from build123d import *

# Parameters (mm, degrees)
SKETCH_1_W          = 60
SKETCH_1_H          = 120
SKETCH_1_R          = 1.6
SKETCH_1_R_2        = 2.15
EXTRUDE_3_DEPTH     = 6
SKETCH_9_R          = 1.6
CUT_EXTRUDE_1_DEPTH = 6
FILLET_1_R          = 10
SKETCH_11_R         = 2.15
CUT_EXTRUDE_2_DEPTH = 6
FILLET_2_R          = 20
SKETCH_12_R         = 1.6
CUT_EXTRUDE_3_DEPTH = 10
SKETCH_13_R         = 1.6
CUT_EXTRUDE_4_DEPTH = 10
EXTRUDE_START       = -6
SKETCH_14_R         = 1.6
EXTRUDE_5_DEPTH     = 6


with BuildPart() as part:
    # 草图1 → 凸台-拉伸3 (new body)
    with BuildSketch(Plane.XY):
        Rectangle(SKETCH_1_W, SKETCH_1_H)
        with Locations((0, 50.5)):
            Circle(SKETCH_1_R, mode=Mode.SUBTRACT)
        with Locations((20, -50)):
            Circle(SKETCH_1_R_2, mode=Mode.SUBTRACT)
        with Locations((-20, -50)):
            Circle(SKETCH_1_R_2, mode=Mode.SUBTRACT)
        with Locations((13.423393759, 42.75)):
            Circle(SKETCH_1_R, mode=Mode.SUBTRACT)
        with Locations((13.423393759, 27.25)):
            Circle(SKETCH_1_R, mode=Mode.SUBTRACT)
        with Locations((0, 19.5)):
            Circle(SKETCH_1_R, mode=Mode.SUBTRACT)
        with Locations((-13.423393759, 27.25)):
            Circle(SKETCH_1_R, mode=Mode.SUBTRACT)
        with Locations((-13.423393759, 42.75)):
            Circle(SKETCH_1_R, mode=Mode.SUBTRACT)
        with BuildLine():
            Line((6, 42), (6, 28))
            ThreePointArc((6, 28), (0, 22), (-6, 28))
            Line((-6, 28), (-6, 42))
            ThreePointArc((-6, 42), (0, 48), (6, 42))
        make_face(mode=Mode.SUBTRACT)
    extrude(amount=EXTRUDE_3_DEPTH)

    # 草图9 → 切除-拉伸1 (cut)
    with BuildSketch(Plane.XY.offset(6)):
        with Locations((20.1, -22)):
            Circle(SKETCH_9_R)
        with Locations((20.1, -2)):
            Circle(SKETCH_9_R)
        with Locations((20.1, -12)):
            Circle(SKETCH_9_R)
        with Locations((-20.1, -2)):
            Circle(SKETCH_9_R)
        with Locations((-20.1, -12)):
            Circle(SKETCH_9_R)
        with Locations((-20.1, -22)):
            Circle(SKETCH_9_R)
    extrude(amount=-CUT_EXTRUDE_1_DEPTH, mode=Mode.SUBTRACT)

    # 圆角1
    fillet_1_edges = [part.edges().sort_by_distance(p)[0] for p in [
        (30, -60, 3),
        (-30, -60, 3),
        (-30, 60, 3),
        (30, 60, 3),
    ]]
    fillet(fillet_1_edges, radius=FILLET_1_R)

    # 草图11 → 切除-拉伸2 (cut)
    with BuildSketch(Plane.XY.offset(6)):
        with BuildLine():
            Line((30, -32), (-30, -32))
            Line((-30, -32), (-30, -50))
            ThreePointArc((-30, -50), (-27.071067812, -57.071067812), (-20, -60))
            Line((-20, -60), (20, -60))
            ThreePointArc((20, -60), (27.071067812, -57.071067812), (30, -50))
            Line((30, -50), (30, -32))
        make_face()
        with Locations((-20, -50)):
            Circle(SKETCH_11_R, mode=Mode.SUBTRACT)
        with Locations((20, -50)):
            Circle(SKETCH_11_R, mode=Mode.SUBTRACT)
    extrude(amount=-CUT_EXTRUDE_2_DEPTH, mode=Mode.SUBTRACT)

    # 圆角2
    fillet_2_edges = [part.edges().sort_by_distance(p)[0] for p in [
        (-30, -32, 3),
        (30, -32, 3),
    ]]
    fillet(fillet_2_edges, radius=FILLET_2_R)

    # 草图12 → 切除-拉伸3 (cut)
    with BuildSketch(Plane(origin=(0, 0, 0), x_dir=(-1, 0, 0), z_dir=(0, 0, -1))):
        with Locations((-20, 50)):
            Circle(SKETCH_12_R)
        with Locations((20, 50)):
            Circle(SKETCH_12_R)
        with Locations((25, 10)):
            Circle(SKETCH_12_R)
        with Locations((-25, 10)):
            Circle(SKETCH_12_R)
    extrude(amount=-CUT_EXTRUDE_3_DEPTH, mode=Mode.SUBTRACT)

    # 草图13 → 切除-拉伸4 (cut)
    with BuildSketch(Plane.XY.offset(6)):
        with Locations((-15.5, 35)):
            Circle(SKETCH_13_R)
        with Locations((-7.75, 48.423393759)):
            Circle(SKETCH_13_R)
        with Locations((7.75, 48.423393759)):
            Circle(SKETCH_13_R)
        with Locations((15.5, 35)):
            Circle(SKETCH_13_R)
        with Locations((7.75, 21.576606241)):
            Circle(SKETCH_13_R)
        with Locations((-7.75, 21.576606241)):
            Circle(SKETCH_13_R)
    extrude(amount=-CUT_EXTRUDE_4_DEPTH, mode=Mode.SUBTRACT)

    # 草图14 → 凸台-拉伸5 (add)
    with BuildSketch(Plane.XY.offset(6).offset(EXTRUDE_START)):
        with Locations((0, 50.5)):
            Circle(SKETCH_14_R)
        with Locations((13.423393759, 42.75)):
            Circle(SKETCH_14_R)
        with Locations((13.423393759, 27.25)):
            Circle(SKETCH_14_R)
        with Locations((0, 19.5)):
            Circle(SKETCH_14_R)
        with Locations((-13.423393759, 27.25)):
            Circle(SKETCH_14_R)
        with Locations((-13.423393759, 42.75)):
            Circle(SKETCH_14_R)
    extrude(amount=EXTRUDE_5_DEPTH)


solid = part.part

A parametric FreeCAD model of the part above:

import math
import FreeCAD as App
import Part
import Sketcher
from FreeCAD import Vector
Q = App.Units.Quantity


def edges_at(feature, points):
    """Names of the edges that pass closest to the given points."""
    edges = feature.Shape.Edges
    near = lambda p: min(range(len(edges)), key=lambda i: edges[i].distToShape(Part.Vertex(*p))[0])
    return sorted({f"Edge{near(p) + 1}" for p in points})


def add_polygon(sketch, points):
    """Adds a closed chain of lines whose ends are joined by coincident constraints."""
    first, n = sketch.GeometryCount, len(points)
    for a, b in zip(points, points[1:] + points[:1]):
        sketch.addGeometry(Part.LineSegment(App.Vector(*a, 0), App.Vector(*b, 0)), False)
    for i in range(n):
        sketch.addConstraint(Sketcher.Constraint("Coincident", first + i, 2, first + (i + 1) % n, 1))

doc = App.newDocument("Part")
body = doc.addObject("PartDesign::Body", "Body")

sketch1 = body.newObject("Sketcher::SketchObject", "Sketch")
sketch1.AttachmentSupport = (doc.getObject("XY_Plane"), [""])
sketch1.MapMode = "FlatFace"
add_polygon(sketch1, [(-30, 60), (-30, -60), (30, -60), (30, 60)])
sketch1.addGeometry(Part.Circle(Vector(-20, -50, 0), Vector(0, 0, 1), 2.1), False)
sketch1.addGeometry(Part.Circle(Vector(20, -50, 0), Vector(0, 0, 1), 2.1), False)
sketch1.addGeometry(Part.Circle(Vector(-13.4, 27.2, 0), Vector(0, 0, 1), 1.6), False)
sketch1.addGeometry(Part.Circle(Vector(-13.4, 42.8, 0), Vector(0, 0, 1), 1.6), False)
sketch1.addGeometry(Part.Circle(Vector(0, 19.5, 0), Vector(0, 0, 1), 1.6), False)
sketch1.addGeometry(Part.ArcOfCircle(Part.Circle(Vector(0, 42, 0), Vector(0, 0, 1), 6), math.radians(0), math.radians(180)), False)
sketch1.addGeometry(Part.LineSegment(Vector(6, 42, 0), Vector(6, 28, 0)), False)
sketch1.addGeometry(Part.ArcOfCircle(Part.Circle(Vector(0, 28, 0), Vector(0, 0, 1), 6), math.radians(180), math.radians(360)), False)
sketch1.addGeometry(Part.LineSegment(Vector(-6, 28, 0), Vector(-6, 42, 0)), False)
sketch1.addGeometry(Part.Circle(Vector(0, 50.5, 0), Vector(0, 0, 1), 1.6), False)
sketch1.addGeometry(Part.Circle(Vector(13.4, 27.2, 0), Vector(0, 0, 1), 1.6), False)
sketch1.addGeometry(Part.Circle(Vector(13.4, 42.8, 0), Vector(0, 0, 1), 1.6), False)
sketch1.addConstraint(Sketcher.Constraint("Tangent", 9, 1, 10, 1))
sketch1.addConstraint(Sketcher.Constraint("Tangent", 10, 2, 11, 2))
sketch1.addConstraint(Sketcher.Constraint("Tangent", 11, 1, 12, 1))
sketch1.addConstraint(Sketcher.Constraint("Tangent", 12, 2, 9, 2))
sketch1.addConstraint(Sketcher.Constraint("Vertical", 0))
sketch1.addConstraint(Sketcher.Constraint("Horizontal", 1))
sketch1.addConstraint(Sketcher.Constraint("Vertical", 2))
sketch1.addConstraint(Sketcher.Constraint("Horizontal", 3))
sketch1.addConstraint(Sketcher.Constraint("Vertical", 10))
sketch1.addConstraint(Sketcher.Constraint("Vertical", 12))
sketch1.addConstraint(Sketcher.Constraint("Equal", 4, 5))
sketch1.addConstraint(Sketcher.Constraint("Equal", 6, 7))
sketch1.addConstraint(Sketcher.Constraint("Equal", 7, 8))
sketch1.addConstraint(Sketcher.Constraint("Equal", 8, 13))
sketch1.addConstraint(Sketcher.Constraint("Equal", 13, 14))
sketch1.addConstraint(Sketcher.Constraint("Equal", 14, 15))
sketch1.addConstraint(Sketcher.Constraint("Symmetric", 0, 2, 2, 2, -1, 1))
sketch1.addConstraint(Sketcher.Constraint("Symmetric", 4, 3, 5, 3, -2))
sketch1.addConstraint(Sketcher.Constraint("Symmetric", 6, 3, 14, 3, -2))
sketch1.addConstraint(Sketcher.Constraint("Symmetric", 7, 3, 15, 3, -2))
sketch1.addConstraint(Sketcher.Constraint("PointOnObject", 8, 3, -2))
sketch1.addConstraint(Sketcher.Constraint("PointOnObject", 9, 3, -2))
sketch1.addConstraint(Sketcher.Constraint("PointOnObject", 13, 3, -2))
sketch1.addConstraint(Sketcher.Constraint("Vertical", 6, 3, 7, 3))
sketch1.addConstraint(Sketcher.Constraint("Radius", 9, Q("6 mm")))
sketch1.addConstraint(Sketcher.Constraint("Diameter", 4, Q("4.3 mm")))
sketch1.addConstraint(Sketcher.Constraint("Diameter", 6, Q("3.2 mm")))
sketch1.addConstraint(Sketcher.Constraint("DistanceX", 1, 1, 1, 2, Q("60 mm")))
sketch1.addConstraint(Sketcher.Constraint("DistanceY", 0, 2, 0, 1, Q("120 mm")))
sketch1.addConstraint(Sketcher.Constraint("DistanceY", 10, 2, 10, 1, Q("14 mm")))
sketch1.addConstraint(Sketcher.Constraint("DistanceX", 4, 3, -1, 1, Q("20 mm")))
sketch1.addConstraint(Sketcher.Constraint("DistanceY", 4, 3, -1, 1, Q("50 mm")))
sketch1.addConstraint(Sketcher.Constraint("DistanceY", -1, 1, 9, 3, Q("42 mm")))
sketch1.addConstraint(Sketcher.Constraint("DistanceY", 8, 3, 13, 3, Q("31 mm")))
sketch1.addConstraint(Sketcher.Constraint("DistanceY", -1, 1, 8, 3, Q("19.5 mm")))
sketch1.addConstraint(Sketcher.Constraint("DistanceY", 6, 3, 7, 3, Q("15.5 mm")))
sketch1.addConstraint(Sketcher.Constraint("DistanceY", -1, 1, 6, 3, Q("27.25 mm")))
sketch1.addConstraint(Sketcher.Constraint("DistanceX", 6, 3, -1, 1, Q("13.423394 mm")))
pad1 = body.newObject("PartDesign::Pad", "Pad")
pad1.Profile = sketch1
pad1.Length = 6

sketch2 = body.newObject("Sketcher::SketchObject", "Sketch001")
sketch2.AttachmentSupport = (doc.getObject("XY_Plane"), [""])
sketch2.MapMode = "FlatFace"
sketch2.AttachmentOffset = App.Placement(Vector(0, 0, 6), App.Rotation())
sketch2.addGeometry(Part.Circle(Vector(20.1, -22, 0), Vector(0, 0, 1), 1.6), False)
sketch2.addGeometry(Part.Circle(Vector(20.1, -2, 0), Vector(0, 0, 1), 1.6), False)
sketch2.addGeometry(Part.Circle(Vector(20.1, -12, 0), Vector(0, 0, 1), 1.6), False)
sketch2.addGeometry(Part.Circle(Vector(-20.1, -2, 0), Vector(0, 0, 1), 1.6), False)
sketch2.addGeometry(Part.Circle(Vector(-20.1, -12, 0), Vector(0, 0, 1), 1.6), False)
sketch2.addGeometry(Part.Circle(Vector(-20.1, -22, 0), Vector(0, 0, 1), 1.6), False)
sketch2.addConstraint(Sketcher.Constraint("Equal", 0, 1))
sketch2.addConstraint(Sketcher.Constraint("Equal", 1, 2))
sketch2.addConstraint(Sketcher.Constraint("Equal", 2, 3))
sketch2.addConstraint(Sketcher.Constraint("Equal", 3, 4))
sketch2.addConstraint(Sketcher.Constraint("Equal", 4, 5))
sketch2.addConstraint(Sketcher.Constraint("Symmetric", 1, 3, 3, 3, -2))
sketch2.addConstraint(Sketcher.Constraint("Symmetric", 2, 3, 4, 3, -2))
sketch2.addConstraint(Sketcher.Constraint("Symmetric", 0, 3, 5, 3, -2))
sketch2.addConstraint(Sketcher.Constraint("Vertical", 0, 3, 1, 3))
sketch2.addConstraint(Sketcher.Constraint("Vertical", 1, 3, 2, 3))
sketch2.addConstraint(Sketcher.Constraint("Diameter", 0, Q("3.2 mm")))
sketch2.addConstraint(Sketcher.Constraint("DistanceY", 0, 3, -1, 1, Q("22 mm")))
sketch2.addConstraint(Sketcher.Constraint("DistanceY", 1, 3, -1, 1, Q("2 mm")))
sketch2.addConstraint(Sketcher.Constraint("DistanceY", 2, 3, -1, 1, Q("12 mm")))
sketch2.addConstraint(Sketcher.Constraint("DistanceX", -1, 1, 0, 3, Q("20.1 mm")))
pocket1 = body.newObject("PartDesign::Pocket", "Pocket")
pocket1.Profile = sketch2
pocket1.Length = 6
doc.recompute()

fillet = body.newObject("PartDesign::Fillet", "Fillet")
fillet.Base = (pocket1, edges_at(pocket1, [
    (30, -60, 3),
    (-30, -60, 3),
    (-30, 60, 3),
    (30, 60, 3),
]))
fillet.Radius = 10

sketch3 = body.newObject("Sketcher::SketchObject", "Sketch002")
sketch3.AttachmentSupport = (doc.getObject("XY_Plane"), [""])
sketch3.MapMode = "FlatFace"
sketch3.AttachmentOffset = App.Placement(Vector(0, 0, 6), App.Rotation())
sketch3.addGeometry(Part.LineSegment(Vector(30, -32, 0), Vector(-30, -32, 0)), False)
sketch3.addGeometry(Part.LineSegment(Vector(-30, -32, 0), Vector(-30, -50, 0)), False)
sketch3.addGeometry(Part.ArcOfCircle(Part.Circle(Vector(-20, -50, 0), Vector(0, 0, 1), 10), math.radians(180), math.radians(270)), False)
sketch3.addGeometry(Part.LineSegment(Vector(-20, -60, 0), Vector(20, -60, 0)), False)
sketch3.addGeometry(Part.ArcOfCircle(Part.Circle(Vector(20, -50, 0), Vector(0, 0, 1), 10), math.radians(-90), math.radians(0)), False)
sketch3.addGeometry(Part.LineSegment(Vector(30, -50, 0), Vector(30, -32, 0)), False)
sketch3.addGeometry(Part.Circle(Vector(-20, -50, 0), Vector(0, 0, 1), 2.1), False)
sketch3.addGeometry(Part.Circle(Vector(20, -50, 0), Vector(0, 0, 1), 2.1), False)
sketch3.addConstraint(Sketcher.Constraint("Coincident", 0, 2, 1, 1))
sketch3.addConstraint(Sketcher.Constraint("Tangent", 1, 2, 2, 1))
sketch3.addConstraint(Sketcher.Constraint("Tangent", 2, 2, 3, 1))
sketch3.addConstraint(Sketcher.Constraint("Tangent", 3, 2, 4, 1))
sketch3.addConstraint(Sketcher.Constraint("Tangent", 4, 2, 5, 1))
sketch3.addConstraint(Sketcher.Constraint("Coincident", 5, 2, 0, 1))
sketch3.addConstraint(Sketcher.Constraint("Horizontal", 0))
sketch3.addConstraint(Sketcher.Constraint("Vertical", 1))
sketch3.addConstraint(Sketcher.Constraint("Horizontal", 3))
sketch3.addConstraint(Sketcher.Constraint("Vertical", 5))
sketch3.addConstraint(Sketcher.Constraint("Coincident", 6, 3, 2, 3))
sketch3.addConstraint(Sketcher.Constraint("Coincident", 7, 3, 4, 3))
sketch3.addConstraint(Sketcher.Constraint("Equal", 2, 4))
sketch3.addConstraint(Sketcher.Constraint("Equal", 6, 7))
sketch3.addConstraint(Sketcher.Constraint("Radius", 2, Q("10 mm")))
sketch3.addConstraint(Sketcher.Constraint("Diameter", 6, Q("4.3 mm")))
sketch3.addConstraint(Sketcher.Constraint("DistanceX", 0, 2, 0, 1, Q("60 mm")))
sketch3.addConstraint(Sketcher.Constraint("DistanceY", 1, 2, 1, 1, Q("18 mm")))
sketch3.addConstraint(Sketcher.Constraint("DistanceX", 2, 3, -1, 1, Q("20 mm")))
sketch3.addConstraint(Sketcher.Constraint("DistanceY", 2, 3, -1, 1, Q("50 mm")))
pocket2 = body.newObject("PartDesign::Pocket", "Pocket001")
pocket2.Profile = sketch3
pocket2.Length = 6
doc.recompute()

fillet2 = body.newObject("PartDesign::Fillet", "Fillet001")
fillet2.Base = (pocket2, edges_at(pocket2, [(-30, -32, 3), (30, -32, 3)]))
fillet2.Radius = 20

sketch4 = body.newObject("Sketcher::SketchObject", "Sketch003")
sketch4.AttachmentSupport = (doc.getObject("XY_Plane"), [""])
sketch4.MapMode = "FlatFace"
sketch4.addGeometry(Part.Circle(Vector(20, 50, 0), Vector(0, 0, 1), 1.6), False)
sketch4.addGeometry(Part.Circle(Vector(-20, 50, 0), Vector(0, 0, 1), 1.6), False)
sketch4.addGeometry(Part.Circle(Vector(-25, 10, 0), Vector(0, 0, 1), 1.6), False)
sketch4.addGeometry(Part.Circle(Vector(25, 10, 0), Vector(0, 0, 1), 1.6), False)
sketch4.addConstraint(Sketcher.Constraint("Equal", 0, 1))
sketch4.addConstraint(Sketcher.Constraint("Equal", 1, 2))
sketch4.addConstraint(Sketcher.Constraint("Equal", 2, 3))
sketch4.addConstraint(Sketcher.Constraint("Symmetric", 0, 3, 1, 3, -2))
sketch4.addConstraint(Sketcher.Constraint("Symmetric", 2, 3, 3, 3, -2))
sketch4.addConstraint(Sketcher.Constraint("Diameter", 0, Q("3.2 mm")))
sketch4.addConstraint(Sketcher.Constraint("DistanceX", -1, 1, 0, 3, Q("20 mm")))
sketch4.addConstraint(Sketcher.Constraint("DistanceY", -1, 1, 0, 3, Q("50 mm")))
sketch4.addConstraint(Sketcher.Constraint("DistanceX", 2, 3, -1, 1, Q("25 mm")))
sketch4.addConstraint(Sketcher.Constraint("DistanceY", -1, 1, 2, 3, Q("10 mm")))
pocket3 = body.newObject("PartDesign::Pocket", "Pocket002")
pocket3.Profile = sketch4
pocket3.Length = 10
pocket3.Reversed = True

sketch5 = body.newObject("Sketcher::SketchObject", "Sketch004")
sketch5.AttachmentSupport = (doc.getObject("XY_Plane"), [""])
sketch5.MapMode = "FlatFace"
sketch5.AttachmentOffset = App.Placement(Vector(0, 0, 6), App.Rotation())
sketch5.addGeometry(Part.Circle(Vector(-15.5, 35, 0), Vector(0, 0, 1), 1.6), False)
sketch5.addGeometry(Part.Circle(Vector(-7.8, 48.4, 0), Vector(0, 0, 1), 1.6), False)
sketch5.addGeometry(Part.Circle(Vector(7.8, 48.4, 0), Vector(0, 0, 1), 1.6), False)
sketch5.addGeometry(Part.Circle(Vector(15.5, 35, 0), Vector(0, 0, 1), 1.6), False)
sketch5.addGeometry(Part.Circle(Vector(7.8, 21.6, 0), Vector(0, 0, 1), 1.6), False)
sketch5.addGeometry(Part.Circle(Vector(-7.8, 21.6, 0), Vector(0, 0, 1), 1.6), False)
sketch5.addConstraint(Sketcher.Constraint("Equal", 0, 1))
sketch5.addConstraint(Sketcher.Constraint("Equal", 1, 2))
sketch5.addConstraint(Sketcher.Constraint("Equal", 2, 3))
sketch5.addConstraint(Sketcher.Constraint("Equal", 3, 4))
sketch5.addConstraint(Sketcher.Constraint("Equal", 4, 5))
sketch5.addConstraint(Sketcher.Constraint("Symmetric", 1, 3, 2, 3, -2))
sketch5.addConstraint(Sketcher.Constraint("Symmetric", 0, 3, 3, 3, -2))
sketch5.addConstraint(Sketcher.Constraint("Symmetric", 4, 3, 5, 3, -2))
sketch5.addConstraint(Sketcher.Constraint("Vertical", 2, 3, 4, 3))
sketch5.addConstraint(Sketcher.Constraint("Diameter", 0, Q("3.2 mm")))
sketch5.addConstraint(Sketcher.Constraint("DistanceY", -1, 1, 0, 3, Q("35 mm")))
sketch5.addConstraint(Sketcher.Constraint("DistanceX", 0, 3, 3, 3, Q("31 mm")))
sketch5.addConstraint(Sketcher.Constraint("DistanceX", 1, 3, 2, 3, Q("15.5 mm")))
sketch5.addConstraint(Sketcher.Constraint("DistanceY", -1, 1, 1, 3, Q("48.423394 mm")))
sketch5.addConstraint(Sketcher.Constraint("DistanceY", -1, 1, 4, 3, Q("21.576606 mm")))
pocket4 = body.newObject("PartDesign::Pocket", "Pocket003")
pocket4.Profile = sketch5
pocket4.Length = 10

sketch6 = body.newObject("Sketcher::SketchObject", "Sketch005")
sketch6.AttachmentSupport = (doc.getObject("XY_Plane"), [""])
sketch6.MapMode = "FlatFace"
sketch6.addGeometry(Part.Circle(Vector(0, 50.5, 0), Vector(0, 0, 1), 1.6), False)
sketch6.addGeometry(Part.Circle(Vector(13.4, 42.8, 0), Vector(0, 0, 1), 1.6), False)
sketch6.addGeometry(Part.Circle(Vector(13.4, 27.2, 0), Vector(0, 0, 1), 1.6), False)
sketch6.addGeometry(Part.Circle(Vector(0, 19.5, 0), Vector(0, 0, 1), 1.6), False)
sketch6.addGeometry(Part.Circle(Vector(-13.4, 27.2, 0), Vector(0, 0, 1), 1.6), False)
sketch6.addGeometry(Part.Circle(Vector(-13.4, 42.8, 0), Vector(0, 0, 1), 1.6), False)
sketch6.addConstraint(Sketcher.Constraint("Equal", 0, 1))
sketch6.addConstraint(Sketcher.Constraint("Equal", 1, 2))
sketch6.addConstraint(Sketcher.Constraint("Equal", 2, 3))
sketch6.addConstraint(Sketcher.Constraint("Equal", 3, 4))
sketch6.addConstraint(Sketcher.Constraint("Equal", 4, 5))
sketch6.addConstraint(Sketcher.Constraint("Symmetric", 2, 3, 4, 3, -2))
sketch6.addConstraint(Sketcher.Constraint("Symmetric", 1, 3, 5, 3, -2))
sketch6.addConstraint(Sketcher.Constraint("PointOnObject", 0, 3, -2))
sketch6.addConstraint(Sketcher.Constraint("PointOnObject", 3, 3, -2))
sketch6.addConstraint(Sketcher.Constraint("Vertical", 1, 3, 2, 3))
sketch6.addConstraint(Sketcher.Constraint("Diameter", 0, Q("3.2 mm")))
sketch6.addConstraint(Sketcher.Constraint("DistanceY", 3, 3, 0, 3, Q("31 mm")))
sketch6.addConstraint(Sketcher.Constraint("DistanceY", -1, 1, 0, 3, Q("50.5 mm")))
sketch6.addConstraint(Sketcher.Constraint("DistanceY", 2, 3, 1, 3, Q("15.5 mm")))
sketch6.addConstraint(Sketcher.Constraint("DistanceY", -1, 1, 1, 3, Q("42.75 mm")))
sketch6.addConstraint(Sketcher.Constraint("DistanceX", -1, 1, 1, 3, Q("13.423394 mm")))
pad2 = body.newObject("PartDesign::Pad", "Pad001")
pad2.Profile = sketch6
pad2.Length = 6

doc.recompute()
